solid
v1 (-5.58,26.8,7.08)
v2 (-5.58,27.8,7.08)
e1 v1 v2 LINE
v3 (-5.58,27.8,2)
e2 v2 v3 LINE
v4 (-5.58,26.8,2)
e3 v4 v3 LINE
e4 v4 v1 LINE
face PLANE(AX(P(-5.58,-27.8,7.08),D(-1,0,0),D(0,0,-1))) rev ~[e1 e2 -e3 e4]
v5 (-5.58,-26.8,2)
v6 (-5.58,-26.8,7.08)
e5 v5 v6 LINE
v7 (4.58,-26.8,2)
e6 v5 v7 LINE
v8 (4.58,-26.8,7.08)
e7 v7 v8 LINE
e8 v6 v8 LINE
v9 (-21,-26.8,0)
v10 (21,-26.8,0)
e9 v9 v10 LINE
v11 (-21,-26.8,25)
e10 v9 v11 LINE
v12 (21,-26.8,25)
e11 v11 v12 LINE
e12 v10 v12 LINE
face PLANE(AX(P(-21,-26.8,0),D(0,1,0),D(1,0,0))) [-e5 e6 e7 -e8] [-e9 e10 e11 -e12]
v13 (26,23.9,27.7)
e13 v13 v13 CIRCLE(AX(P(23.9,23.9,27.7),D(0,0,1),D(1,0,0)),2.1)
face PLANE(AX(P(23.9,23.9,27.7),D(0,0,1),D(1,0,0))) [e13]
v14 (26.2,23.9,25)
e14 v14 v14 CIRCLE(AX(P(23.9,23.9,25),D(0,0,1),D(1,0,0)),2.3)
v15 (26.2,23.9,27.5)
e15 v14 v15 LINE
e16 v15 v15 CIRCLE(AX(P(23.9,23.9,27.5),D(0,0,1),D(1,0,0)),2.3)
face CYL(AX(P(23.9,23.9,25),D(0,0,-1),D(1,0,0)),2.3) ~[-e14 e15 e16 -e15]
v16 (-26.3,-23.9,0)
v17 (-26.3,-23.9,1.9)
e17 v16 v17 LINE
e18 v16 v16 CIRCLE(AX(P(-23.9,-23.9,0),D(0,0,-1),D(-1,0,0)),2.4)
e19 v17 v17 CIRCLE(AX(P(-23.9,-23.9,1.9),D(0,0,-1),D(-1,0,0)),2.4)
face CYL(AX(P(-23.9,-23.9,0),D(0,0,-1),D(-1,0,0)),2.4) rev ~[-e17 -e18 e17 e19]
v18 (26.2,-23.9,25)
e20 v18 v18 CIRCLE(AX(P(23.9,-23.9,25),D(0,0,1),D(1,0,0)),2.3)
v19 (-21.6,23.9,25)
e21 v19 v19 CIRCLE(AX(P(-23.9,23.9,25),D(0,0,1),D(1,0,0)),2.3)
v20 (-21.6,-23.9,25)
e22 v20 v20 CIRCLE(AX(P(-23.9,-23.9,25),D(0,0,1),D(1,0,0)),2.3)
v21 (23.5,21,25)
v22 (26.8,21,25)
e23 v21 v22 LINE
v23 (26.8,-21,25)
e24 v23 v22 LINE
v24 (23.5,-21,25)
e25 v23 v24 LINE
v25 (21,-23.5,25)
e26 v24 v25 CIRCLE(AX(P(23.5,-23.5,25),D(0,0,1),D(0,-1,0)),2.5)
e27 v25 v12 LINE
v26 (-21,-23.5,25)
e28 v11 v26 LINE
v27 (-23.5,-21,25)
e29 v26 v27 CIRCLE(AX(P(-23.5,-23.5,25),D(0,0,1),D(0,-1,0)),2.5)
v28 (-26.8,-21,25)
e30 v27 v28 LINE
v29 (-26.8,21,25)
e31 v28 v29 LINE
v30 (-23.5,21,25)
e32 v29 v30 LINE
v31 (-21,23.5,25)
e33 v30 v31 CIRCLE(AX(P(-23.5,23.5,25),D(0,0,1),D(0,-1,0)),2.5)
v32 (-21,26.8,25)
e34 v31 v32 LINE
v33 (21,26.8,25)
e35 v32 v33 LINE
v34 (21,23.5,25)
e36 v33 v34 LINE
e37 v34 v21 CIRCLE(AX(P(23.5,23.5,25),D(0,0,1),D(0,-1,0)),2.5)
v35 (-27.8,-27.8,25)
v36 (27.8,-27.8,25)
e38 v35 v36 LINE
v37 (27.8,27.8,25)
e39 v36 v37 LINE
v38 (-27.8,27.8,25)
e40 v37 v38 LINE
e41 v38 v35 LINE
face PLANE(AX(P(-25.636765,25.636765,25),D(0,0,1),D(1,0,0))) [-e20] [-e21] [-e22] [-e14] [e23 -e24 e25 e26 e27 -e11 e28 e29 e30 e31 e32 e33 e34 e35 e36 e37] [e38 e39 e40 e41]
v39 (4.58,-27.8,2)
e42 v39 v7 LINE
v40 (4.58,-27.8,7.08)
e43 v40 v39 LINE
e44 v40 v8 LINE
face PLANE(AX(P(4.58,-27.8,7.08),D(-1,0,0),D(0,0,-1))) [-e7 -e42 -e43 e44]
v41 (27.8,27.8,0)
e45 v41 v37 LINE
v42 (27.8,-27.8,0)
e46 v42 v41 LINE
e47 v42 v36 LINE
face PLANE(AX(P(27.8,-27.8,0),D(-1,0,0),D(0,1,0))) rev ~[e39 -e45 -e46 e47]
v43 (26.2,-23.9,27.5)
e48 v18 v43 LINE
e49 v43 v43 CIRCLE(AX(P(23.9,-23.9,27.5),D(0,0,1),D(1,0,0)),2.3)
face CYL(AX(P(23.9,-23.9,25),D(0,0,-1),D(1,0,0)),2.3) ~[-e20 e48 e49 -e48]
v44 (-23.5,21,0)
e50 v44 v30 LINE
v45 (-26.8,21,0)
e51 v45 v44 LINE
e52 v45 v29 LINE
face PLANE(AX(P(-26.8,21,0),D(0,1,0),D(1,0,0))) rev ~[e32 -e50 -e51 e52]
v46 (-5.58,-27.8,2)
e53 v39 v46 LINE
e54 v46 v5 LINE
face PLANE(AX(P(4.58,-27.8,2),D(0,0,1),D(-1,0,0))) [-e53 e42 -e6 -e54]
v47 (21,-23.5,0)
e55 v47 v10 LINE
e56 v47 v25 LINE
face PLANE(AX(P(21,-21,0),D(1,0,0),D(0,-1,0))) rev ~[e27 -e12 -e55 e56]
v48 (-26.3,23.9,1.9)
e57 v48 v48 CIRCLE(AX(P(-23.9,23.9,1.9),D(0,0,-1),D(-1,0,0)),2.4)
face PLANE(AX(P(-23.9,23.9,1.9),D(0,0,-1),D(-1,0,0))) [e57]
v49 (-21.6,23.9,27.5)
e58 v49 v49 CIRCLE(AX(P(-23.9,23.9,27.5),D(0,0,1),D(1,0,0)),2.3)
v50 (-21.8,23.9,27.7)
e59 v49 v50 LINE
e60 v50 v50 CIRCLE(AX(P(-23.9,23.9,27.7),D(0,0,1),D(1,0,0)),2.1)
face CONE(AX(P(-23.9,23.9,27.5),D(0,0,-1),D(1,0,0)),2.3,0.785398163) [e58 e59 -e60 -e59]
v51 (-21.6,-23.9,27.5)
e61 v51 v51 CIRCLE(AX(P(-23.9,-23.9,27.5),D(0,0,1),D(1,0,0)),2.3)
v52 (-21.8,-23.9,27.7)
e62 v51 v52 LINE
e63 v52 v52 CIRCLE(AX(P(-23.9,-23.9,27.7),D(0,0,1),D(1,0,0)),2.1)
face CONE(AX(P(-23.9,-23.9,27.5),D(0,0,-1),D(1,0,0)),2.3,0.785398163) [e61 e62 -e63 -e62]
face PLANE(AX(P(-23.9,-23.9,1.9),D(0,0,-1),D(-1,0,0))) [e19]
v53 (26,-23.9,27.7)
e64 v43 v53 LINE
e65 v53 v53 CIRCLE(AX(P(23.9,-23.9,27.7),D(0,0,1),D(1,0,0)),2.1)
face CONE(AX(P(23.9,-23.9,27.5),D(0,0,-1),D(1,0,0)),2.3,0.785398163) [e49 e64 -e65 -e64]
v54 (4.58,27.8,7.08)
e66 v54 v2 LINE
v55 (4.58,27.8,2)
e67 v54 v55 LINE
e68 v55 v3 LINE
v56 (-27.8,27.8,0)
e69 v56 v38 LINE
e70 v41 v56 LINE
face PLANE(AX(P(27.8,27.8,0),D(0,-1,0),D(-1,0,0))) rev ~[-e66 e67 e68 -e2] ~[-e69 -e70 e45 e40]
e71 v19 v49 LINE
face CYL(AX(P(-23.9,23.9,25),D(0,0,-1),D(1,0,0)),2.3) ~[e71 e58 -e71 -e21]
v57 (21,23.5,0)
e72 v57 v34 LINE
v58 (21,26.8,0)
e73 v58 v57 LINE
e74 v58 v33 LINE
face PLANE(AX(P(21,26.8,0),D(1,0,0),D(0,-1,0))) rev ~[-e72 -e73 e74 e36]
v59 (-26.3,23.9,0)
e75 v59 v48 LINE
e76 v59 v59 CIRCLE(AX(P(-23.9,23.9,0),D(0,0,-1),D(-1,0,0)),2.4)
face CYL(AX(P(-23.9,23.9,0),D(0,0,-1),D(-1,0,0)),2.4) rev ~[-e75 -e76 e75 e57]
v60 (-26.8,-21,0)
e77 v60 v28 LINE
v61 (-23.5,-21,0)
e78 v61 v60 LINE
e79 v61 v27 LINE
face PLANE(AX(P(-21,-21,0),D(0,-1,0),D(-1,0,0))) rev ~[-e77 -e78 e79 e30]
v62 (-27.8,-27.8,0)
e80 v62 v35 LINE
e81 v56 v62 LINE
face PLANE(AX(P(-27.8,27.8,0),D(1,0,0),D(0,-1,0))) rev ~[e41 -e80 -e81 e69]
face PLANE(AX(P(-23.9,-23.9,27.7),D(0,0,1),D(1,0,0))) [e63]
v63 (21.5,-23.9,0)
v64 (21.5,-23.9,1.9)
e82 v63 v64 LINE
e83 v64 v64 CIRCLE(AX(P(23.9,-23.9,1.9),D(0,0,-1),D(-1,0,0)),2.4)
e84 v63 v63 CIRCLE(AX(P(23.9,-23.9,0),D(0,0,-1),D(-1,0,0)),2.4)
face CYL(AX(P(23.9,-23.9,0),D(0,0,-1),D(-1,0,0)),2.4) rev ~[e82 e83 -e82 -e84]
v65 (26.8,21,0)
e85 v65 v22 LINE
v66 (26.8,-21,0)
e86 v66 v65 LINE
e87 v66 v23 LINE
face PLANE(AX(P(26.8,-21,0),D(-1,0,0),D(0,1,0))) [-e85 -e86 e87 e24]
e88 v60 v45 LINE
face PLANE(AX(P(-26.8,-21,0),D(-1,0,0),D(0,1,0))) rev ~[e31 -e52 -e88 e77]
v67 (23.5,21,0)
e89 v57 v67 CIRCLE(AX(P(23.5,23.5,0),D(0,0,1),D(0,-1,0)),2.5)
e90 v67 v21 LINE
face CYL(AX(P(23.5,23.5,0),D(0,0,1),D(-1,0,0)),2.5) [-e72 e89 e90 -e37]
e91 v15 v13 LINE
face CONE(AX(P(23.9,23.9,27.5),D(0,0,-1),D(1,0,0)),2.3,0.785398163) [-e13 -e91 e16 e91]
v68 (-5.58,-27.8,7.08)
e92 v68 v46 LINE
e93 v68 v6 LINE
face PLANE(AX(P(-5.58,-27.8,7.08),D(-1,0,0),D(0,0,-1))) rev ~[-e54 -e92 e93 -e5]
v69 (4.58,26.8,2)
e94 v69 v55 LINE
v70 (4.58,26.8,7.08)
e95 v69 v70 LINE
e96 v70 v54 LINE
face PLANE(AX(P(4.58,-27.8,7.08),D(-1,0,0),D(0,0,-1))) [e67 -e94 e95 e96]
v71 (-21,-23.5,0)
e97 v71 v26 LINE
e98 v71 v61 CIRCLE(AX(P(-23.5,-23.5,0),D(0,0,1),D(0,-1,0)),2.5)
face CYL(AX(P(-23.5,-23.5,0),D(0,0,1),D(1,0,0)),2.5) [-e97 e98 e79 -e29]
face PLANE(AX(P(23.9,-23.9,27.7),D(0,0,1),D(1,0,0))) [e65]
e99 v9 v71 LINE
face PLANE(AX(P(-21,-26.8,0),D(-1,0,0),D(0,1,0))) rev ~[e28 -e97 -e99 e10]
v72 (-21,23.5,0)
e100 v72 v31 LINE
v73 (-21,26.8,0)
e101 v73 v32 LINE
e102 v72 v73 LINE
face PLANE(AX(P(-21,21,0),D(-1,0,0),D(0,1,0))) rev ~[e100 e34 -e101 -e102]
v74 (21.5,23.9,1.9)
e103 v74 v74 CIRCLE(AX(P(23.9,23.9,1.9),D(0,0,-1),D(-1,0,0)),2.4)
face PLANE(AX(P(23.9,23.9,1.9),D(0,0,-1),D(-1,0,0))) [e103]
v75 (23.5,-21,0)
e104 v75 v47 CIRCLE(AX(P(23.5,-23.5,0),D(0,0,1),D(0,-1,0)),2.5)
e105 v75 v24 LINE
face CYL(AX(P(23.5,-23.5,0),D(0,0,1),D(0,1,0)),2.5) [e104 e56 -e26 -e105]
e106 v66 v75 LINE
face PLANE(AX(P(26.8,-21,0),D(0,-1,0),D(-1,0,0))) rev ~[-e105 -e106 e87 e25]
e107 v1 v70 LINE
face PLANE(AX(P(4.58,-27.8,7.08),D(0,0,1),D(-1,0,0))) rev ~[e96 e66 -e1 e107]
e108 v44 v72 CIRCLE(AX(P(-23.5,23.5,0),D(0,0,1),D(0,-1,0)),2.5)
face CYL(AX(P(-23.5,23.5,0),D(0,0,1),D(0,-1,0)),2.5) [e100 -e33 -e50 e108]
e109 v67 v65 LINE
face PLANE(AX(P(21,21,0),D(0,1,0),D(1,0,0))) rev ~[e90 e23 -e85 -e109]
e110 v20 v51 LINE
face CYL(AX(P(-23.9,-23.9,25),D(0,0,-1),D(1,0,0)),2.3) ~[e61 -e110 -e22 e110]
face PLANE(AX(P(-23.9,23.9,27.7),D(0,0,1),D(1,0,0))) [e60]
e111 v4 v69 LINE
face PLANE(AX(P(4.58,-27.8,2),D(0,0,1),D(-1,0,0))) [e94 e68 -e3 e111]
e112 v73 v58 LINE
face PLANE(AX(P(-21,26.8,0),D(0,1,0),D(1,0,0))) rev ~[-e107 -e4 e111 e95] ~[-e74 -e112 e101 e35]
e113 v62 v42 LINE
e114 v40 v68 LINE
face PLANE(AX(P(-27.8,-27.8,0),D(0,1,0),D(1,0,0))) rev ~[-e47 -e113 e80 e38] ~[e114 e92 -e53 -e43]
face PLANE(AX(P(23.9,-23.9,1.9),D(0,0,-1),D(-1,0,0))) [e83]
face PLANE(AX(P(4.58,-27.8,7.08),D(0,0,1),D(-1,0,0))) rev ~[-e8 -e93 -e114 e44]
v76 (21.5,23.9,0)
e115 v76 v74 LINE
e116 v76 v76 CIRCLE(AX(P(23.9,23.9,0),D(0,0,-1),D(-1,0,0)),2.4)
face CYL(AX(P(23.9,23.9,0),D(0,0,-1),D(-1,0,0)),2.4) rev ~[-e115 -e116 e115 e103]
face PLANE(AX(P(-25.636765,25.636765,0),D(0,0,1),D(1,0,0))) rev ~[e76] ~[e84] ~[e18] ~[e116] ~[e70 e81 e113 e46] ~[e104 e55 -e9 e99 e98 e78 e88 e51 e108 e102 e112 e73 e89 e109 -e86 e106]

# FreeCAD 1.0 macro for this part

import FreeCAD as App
import Part
import Sketcher

V = App.Vector


def edges_at(feature, points):
    """Names of the edges that pass closest to the given points."""
    edges = feature.Shape.Edges
    near = lambda p: min(range(len(edges)), key=lambda i: edges[i].distToShape(Part.Vertex(*p))[0])
    return sorted({f"Edge{near(p) + 1}" for p in points})


def add_polygon(sketch, points):
    """Adds a closed chain of lines whose ends are joined by coincident constraints."""
    first, n = sketch.GeometryCount, len(points)
    for a, b in zip(points, points[1:] + points[:1]):
        sketch.addGeometry(Part.LineSegment(App.Vector(*a, 0), App.Vector(*b, 0)), False)
    for i in range(n):
        sketch.addConstraint(Sketcher.Constraint("Coincident", first + i, 2, first + (i + 1) % n, 1))

doc = App.newDocument("Part")
params = doc.addObject("Spreadsheet::Sheet", "Params")
for row, (alias, value) in enumerate([
    ("sketch1_width", "42 mm"),
    ("sketch1_width2", "55.6 mm"),
    ("sketch1_width3", "5.8 mm"),
    ("pad1_length", "25 mm"),
    ("fillet_radius", "2.5 mm"),
    ("sketch2_diameter", "4.8 mm"),
    ("pocket1_length", "1.9 mm"),
    ("sketch3_diameter", "4.6 mm"),
    ("pad2_length", "2.7 mm"),
    ("chamfer_size", "0.2 mm"),
    ("sketch4_width", "10.16 mm"),
    ("sketch4_height", "5.08 mm"),
    ("pocket2_length", "68.7 mm"),
], start=1):
    params.set(f"A{row}", alias)
    params.set(f"B{row}", "=" + value)
    params.setAlias(f"B{row}", alias)

body = doc.addObject("PartDesign::Body", "Body")

# Sketch on XY plane
sketch1 = body.newObject("Sketcher::SketchObject", "Sketch")
sketch1.AttachmentSupport = (doc.getObject("XY_Plane"), [""])
sketch1.MapMode = "FlatFace"
add_polygon(sketch1, [(-27.8, 27.8), (-27.8, -27.8), (27.8, -27.8), (27.8, 27.8)])  # lines 0-3
add_polygon(sketch1, [(21, 26.8), (21, 21), (26.8, 21), (26.8, -21), (21, -21), (21, -26.8), (-21, -26.8), (-21, -21), (-26.8, -21), (-26.8, 21), (-21, 21), (-21, 26.8)])  # lines 4-15
sketch1.addConstraint(Sketcher.Constraint("Vertical", 0))
sketch1.addConstraint(Sketcher.Constraint("Horizontal", 1))
sketch1.addConstraint(Sketcher.Constraint("Vertical", 2))
sketch1.addConstraint(Sketcher.Constraint("Horizontal", 3))
sketch1.addConstraint(Sketcher.Constraint("Vertical", 4))
sketch1.addConstraint(Sketcher.Constraint("Horizontal", 5))
sketch1.addConstraint(Sketcher.Constraint("Vertical", 6))
sketch1.addConstraint(Sketcher.Constraint("Horizontal", 7))
sketch1.addConstraint(Sketcher.Constraint("Vertical", 8))
sketch1.addConstraint(Sketcher.Constraint("Horizontal", 9))
sketch1.addConstraint(Sketcher.Constraint("Vertical", 10))
sketch1.addConstraint(Sketcher.Constraint("Horizontal", 11))
sketch1.addConstraint(Sketcher.Constraint("Vertical", 12))
sketch1.addConstraint(Sketcher.Constraint("Horizontal", 13))
sketch1.addConstraint(Sketcher.Constraint("Vertical", 14))
sketch1.addConstraint(Sketcher.Constraint("Horizontal", 15))
sketch1.addConstraint(Sketcher.Constraint("Symmetric", 0, 2, 2, 2, -1, 1))
sketch1.addConstraint(Sketcher.Constraint("Symmetric", 4, 2, 10, 2, -1, 1))
sketch1.addConstraint(Sketcher.Constraint("Symmetric", 6, 2, 12, 2, -1, 1))
sketch1.addConstraint(Sketcher.Constraint("Symmetric", 8, 2, 14, 2, -1, 1))
sketch1.addConstraint(Sketcher.Constraint("Symmetric", 7, 2, 10, 2, -2))
sketch1.addConstraint(Sketcher.Constraint("Equal", 3, 0))
sketch1.addConstraint(Sketcher.Constraint("Equal", 13, 4))
sketch1.addConstraint(Sketcher.Constraint("Equal", 15, 6))
sketch1.addConstraint(Sketcher.Constraint("DistanceX", 9, 2, 9, 1, 42.0))
sketch1.addConstraint(Sketcher.Constraint("DistanceX", 1, 1, 1, 2, 55.6))
sketch1.addConstraint(Sketcher.Constraint("DistanceX", 5, 1, 5, 2, 5.8))
sketch1.setExpression("Constraints[40]", "Params.sketch1_width")
sketch1.setExpression("Constraints[41]", "Params.sketch1_width2")
sketch1.setExpression("Constraints[42]", "Params.sketch1_width3")
pad1 = body.newObject("PartDesign::Pad", "Pad")
pad1.Profile = sketch1
pad1.setExpression("Length", "Params.pad1_length")
doc.recompute()

fillet = body.newObject("PartDesign::Fillet", "Fillet")
fillet.Base = (pad1, edges_at(pad1, [
    (21, -21, 12.5),
    (21, 21, 12.5),
    (-21, 21, 12.5),
    (-21, -21, 12.5),
]))
fillet.setExpression("Radius", "Params.fillet_radius")

# Sketch on XY plane
sketch2 = body.newObject("Sketcher::SketchObject", "Sketch001")
sketch2.AttachmentSupport = (doc.getObject("XY_Plane"), [""])
sketch2.MapMode = "FlatFace"
sketch2.addGeometry(Part.Circle(V(23.9, 23.9, 0), V(0, 0, 1), 2.4), False)
sketch2.addGeometry(Part.Circle(V(-23.9, 23.9, 0), V(0, 0, 1), 2.4), False)
sketch2.addGeometry(Part.Circle(V(-23.9, -23.9, 0), V(0, 0, 1), 2.4), False)
sketch2.addGeometry(Part.Circle(V(23.9, -23.9, 0), V(0, 0, 1), 2.4), False)
sketch2.addConstraint(Sketcher.Constraint("Equal", 0, 1))
sketch2.addConstraint(Sketcher.Constraint("Equal", 1, 2))
sketch2.addConstraint(Sketcher.Constraint("Equal", 2, 3))
sketch2.addConstraint(Sketcher.Constraint("Symmetric", 0, 3, 2, 3, -1, 1))
sketch2.addConstraint(Sketcher.Constraint("Symmetric", 1, 3, 3, 3, -1, 1))
sketch2.addConstraint(Sketcher.Constraint("Symmetric", 0, 3, 1, 3, -2))
sketch2.addConstraint(Sketcher.Constraint("Diameter", 0, 4.8))
sketch2.addConstraint(Sketcher.Constraint("DistanceX", -1, 1, 0, 3, 23.9))
sketch2.addConstraint(Sketcher.Constraint("DistanceY", -1, 1, 0, 3, 23.9))
sketch2.setExpression("Constraints[6]", "Params.sketch2_diameter")
pocket1 = body.newObject("PartDesign::Pocket", "Pocket")
pocket1.Profile = sketch2
pocket1.setExpression("Length", "Params.pocket1_length")
pocket1.Reversed = True

# Sketch on XY plane
sketch3 = body.newObject("Sketcher::SketchObject", "Sketch002")
sketch3.AttachmentSupport = (doc.getObject("XY_Plane"), [""])
sketch3.MapMode = "FlatFace"
sketch3.AttachmentOffset = App.Placement(V(0, 0, 25), App.Rotation())
sketch3.addGeometry(Part.Circle(V(-23.9, 23.9, 0), V(0, 0, 1), 2.3), False)
sketch3.addGeometry(Part.Circle(V(23.9, 23.9, 0), V(0, 0, 1), 2.3), False)
sketch3.addGeometry(Part.Circle(V(23.9, -23.9, 0), V(0, 0, 1), 2.3), False)
sketch3.addGeometry(Part.Circle(V(-23.9, -23.9, 0), V(0, 0, 1), 2.3), False)
sketch3.addConstraint(Sketcher.Constraint("Equal", 0, 1))
sketch3.addConstraint(Sketcher.Constraint("Equal", 1, 2))
sketch3.addConstraint(Sketcher.Constraint("Equal", 2, 3))
sketch3.addConstraint(Sketcher.Constraint("Symmetric", 0, 3, 2, 3, -1, 1))
sketch3.addConstraint(Sketcher.Constraint("Symmetric", 1, 3, 3, 3, -1, 1))
sketch3.addConstraint(Sketcher.Constraint("Symmetric", 0, 3, 1, 3, -2))
sketch3.addConstraint(Sketcher.Constraint("Diameter", 0, 4.6))
sketch3.addConstraint(Sketcher.Constraint("DistanceX", 0, 3, -1, 1, 23.9))
sketch3.addConstraint(Sketcher.Constraint("DistanceY", -1, 1, 0, 3, 23.9))
sketch3.setExpression("Constraints[6]", "Params.sketch3_diameter")
pad2 = body.newObject("PartDesign::Pad", "Pad001")
pad2.Profile = sketch3
pad2.setExpression("Length", "Params.pad2_length")
doc.recompute()

chamfer = body.newObject("PartDesign::Chamfer", "Chamfer")
chamfer.Base = (pad2, edges_at(pad2, [
    (-26.2, 23.9, 27.7),
    (21.6, 23.9, 27.7),
    (21.6, -23.9, 27.7),
    (-26.2, -23.9, 27.7),
]))
chamfer.setExpression("Size", "Params.chamfer_size")

# Sketch on XZ plane
sketch4 = body.newObject("Sketcher::SketchObject", "Sketch003")
sketch4.AttachmentSupport = (doc.getObject("XZ_Plane"), [""])
sketch4.MapMode = "FlatFace"
sketch4.AttachmentOffset = App.Placement(V(0, 0, 27.8), App.Rotation())
add_polygon(sketch4, [(4.58, 2), (4.58, 7.08), (-5.58, 7.08), (-5.58, 2)])  # lines 0-3
sketch4.addConstraint(Sketcher.Constraint("Vertical", 0))
sketch4.addConstraint(Sketcher.Constraint("Horizontal", 1))
sketch4.addConstraint(Sketcher.Constraint("Vertical", 2))
sketch4.addConstraint(Sketcher.Constraint("Horizontal", 3))
sketch4.addConstraint(Sketcher.Constraint("DistanceY", -1, 1, 2, 2, 2.0))
sketch4.addConstraint(Sketcher.Constraint("DistanceX", 1, 2, 1, 1, 10.16))
sketch4.addConstraint(Sketcher.Constraint("DistanceY", 0, 1, 0, 2, 5.08))
sketch4.addConstraint(Sketcher.Constraint("DistanceX", -1, 1, 0, 2, 4.58))
sketch4.setExpression("Constraints[9]", "Params.sketch4_width")
sketch4.setExpression("Constraints[10]", "Params.sketch4_height")
pocket2 = body.newObject("PartDesign::Pocket", "Pocket001")
pocket2.Profile = sketch4
pocket2.setExpression("Length", "Params.pocket2_length")

doc.recompute()
